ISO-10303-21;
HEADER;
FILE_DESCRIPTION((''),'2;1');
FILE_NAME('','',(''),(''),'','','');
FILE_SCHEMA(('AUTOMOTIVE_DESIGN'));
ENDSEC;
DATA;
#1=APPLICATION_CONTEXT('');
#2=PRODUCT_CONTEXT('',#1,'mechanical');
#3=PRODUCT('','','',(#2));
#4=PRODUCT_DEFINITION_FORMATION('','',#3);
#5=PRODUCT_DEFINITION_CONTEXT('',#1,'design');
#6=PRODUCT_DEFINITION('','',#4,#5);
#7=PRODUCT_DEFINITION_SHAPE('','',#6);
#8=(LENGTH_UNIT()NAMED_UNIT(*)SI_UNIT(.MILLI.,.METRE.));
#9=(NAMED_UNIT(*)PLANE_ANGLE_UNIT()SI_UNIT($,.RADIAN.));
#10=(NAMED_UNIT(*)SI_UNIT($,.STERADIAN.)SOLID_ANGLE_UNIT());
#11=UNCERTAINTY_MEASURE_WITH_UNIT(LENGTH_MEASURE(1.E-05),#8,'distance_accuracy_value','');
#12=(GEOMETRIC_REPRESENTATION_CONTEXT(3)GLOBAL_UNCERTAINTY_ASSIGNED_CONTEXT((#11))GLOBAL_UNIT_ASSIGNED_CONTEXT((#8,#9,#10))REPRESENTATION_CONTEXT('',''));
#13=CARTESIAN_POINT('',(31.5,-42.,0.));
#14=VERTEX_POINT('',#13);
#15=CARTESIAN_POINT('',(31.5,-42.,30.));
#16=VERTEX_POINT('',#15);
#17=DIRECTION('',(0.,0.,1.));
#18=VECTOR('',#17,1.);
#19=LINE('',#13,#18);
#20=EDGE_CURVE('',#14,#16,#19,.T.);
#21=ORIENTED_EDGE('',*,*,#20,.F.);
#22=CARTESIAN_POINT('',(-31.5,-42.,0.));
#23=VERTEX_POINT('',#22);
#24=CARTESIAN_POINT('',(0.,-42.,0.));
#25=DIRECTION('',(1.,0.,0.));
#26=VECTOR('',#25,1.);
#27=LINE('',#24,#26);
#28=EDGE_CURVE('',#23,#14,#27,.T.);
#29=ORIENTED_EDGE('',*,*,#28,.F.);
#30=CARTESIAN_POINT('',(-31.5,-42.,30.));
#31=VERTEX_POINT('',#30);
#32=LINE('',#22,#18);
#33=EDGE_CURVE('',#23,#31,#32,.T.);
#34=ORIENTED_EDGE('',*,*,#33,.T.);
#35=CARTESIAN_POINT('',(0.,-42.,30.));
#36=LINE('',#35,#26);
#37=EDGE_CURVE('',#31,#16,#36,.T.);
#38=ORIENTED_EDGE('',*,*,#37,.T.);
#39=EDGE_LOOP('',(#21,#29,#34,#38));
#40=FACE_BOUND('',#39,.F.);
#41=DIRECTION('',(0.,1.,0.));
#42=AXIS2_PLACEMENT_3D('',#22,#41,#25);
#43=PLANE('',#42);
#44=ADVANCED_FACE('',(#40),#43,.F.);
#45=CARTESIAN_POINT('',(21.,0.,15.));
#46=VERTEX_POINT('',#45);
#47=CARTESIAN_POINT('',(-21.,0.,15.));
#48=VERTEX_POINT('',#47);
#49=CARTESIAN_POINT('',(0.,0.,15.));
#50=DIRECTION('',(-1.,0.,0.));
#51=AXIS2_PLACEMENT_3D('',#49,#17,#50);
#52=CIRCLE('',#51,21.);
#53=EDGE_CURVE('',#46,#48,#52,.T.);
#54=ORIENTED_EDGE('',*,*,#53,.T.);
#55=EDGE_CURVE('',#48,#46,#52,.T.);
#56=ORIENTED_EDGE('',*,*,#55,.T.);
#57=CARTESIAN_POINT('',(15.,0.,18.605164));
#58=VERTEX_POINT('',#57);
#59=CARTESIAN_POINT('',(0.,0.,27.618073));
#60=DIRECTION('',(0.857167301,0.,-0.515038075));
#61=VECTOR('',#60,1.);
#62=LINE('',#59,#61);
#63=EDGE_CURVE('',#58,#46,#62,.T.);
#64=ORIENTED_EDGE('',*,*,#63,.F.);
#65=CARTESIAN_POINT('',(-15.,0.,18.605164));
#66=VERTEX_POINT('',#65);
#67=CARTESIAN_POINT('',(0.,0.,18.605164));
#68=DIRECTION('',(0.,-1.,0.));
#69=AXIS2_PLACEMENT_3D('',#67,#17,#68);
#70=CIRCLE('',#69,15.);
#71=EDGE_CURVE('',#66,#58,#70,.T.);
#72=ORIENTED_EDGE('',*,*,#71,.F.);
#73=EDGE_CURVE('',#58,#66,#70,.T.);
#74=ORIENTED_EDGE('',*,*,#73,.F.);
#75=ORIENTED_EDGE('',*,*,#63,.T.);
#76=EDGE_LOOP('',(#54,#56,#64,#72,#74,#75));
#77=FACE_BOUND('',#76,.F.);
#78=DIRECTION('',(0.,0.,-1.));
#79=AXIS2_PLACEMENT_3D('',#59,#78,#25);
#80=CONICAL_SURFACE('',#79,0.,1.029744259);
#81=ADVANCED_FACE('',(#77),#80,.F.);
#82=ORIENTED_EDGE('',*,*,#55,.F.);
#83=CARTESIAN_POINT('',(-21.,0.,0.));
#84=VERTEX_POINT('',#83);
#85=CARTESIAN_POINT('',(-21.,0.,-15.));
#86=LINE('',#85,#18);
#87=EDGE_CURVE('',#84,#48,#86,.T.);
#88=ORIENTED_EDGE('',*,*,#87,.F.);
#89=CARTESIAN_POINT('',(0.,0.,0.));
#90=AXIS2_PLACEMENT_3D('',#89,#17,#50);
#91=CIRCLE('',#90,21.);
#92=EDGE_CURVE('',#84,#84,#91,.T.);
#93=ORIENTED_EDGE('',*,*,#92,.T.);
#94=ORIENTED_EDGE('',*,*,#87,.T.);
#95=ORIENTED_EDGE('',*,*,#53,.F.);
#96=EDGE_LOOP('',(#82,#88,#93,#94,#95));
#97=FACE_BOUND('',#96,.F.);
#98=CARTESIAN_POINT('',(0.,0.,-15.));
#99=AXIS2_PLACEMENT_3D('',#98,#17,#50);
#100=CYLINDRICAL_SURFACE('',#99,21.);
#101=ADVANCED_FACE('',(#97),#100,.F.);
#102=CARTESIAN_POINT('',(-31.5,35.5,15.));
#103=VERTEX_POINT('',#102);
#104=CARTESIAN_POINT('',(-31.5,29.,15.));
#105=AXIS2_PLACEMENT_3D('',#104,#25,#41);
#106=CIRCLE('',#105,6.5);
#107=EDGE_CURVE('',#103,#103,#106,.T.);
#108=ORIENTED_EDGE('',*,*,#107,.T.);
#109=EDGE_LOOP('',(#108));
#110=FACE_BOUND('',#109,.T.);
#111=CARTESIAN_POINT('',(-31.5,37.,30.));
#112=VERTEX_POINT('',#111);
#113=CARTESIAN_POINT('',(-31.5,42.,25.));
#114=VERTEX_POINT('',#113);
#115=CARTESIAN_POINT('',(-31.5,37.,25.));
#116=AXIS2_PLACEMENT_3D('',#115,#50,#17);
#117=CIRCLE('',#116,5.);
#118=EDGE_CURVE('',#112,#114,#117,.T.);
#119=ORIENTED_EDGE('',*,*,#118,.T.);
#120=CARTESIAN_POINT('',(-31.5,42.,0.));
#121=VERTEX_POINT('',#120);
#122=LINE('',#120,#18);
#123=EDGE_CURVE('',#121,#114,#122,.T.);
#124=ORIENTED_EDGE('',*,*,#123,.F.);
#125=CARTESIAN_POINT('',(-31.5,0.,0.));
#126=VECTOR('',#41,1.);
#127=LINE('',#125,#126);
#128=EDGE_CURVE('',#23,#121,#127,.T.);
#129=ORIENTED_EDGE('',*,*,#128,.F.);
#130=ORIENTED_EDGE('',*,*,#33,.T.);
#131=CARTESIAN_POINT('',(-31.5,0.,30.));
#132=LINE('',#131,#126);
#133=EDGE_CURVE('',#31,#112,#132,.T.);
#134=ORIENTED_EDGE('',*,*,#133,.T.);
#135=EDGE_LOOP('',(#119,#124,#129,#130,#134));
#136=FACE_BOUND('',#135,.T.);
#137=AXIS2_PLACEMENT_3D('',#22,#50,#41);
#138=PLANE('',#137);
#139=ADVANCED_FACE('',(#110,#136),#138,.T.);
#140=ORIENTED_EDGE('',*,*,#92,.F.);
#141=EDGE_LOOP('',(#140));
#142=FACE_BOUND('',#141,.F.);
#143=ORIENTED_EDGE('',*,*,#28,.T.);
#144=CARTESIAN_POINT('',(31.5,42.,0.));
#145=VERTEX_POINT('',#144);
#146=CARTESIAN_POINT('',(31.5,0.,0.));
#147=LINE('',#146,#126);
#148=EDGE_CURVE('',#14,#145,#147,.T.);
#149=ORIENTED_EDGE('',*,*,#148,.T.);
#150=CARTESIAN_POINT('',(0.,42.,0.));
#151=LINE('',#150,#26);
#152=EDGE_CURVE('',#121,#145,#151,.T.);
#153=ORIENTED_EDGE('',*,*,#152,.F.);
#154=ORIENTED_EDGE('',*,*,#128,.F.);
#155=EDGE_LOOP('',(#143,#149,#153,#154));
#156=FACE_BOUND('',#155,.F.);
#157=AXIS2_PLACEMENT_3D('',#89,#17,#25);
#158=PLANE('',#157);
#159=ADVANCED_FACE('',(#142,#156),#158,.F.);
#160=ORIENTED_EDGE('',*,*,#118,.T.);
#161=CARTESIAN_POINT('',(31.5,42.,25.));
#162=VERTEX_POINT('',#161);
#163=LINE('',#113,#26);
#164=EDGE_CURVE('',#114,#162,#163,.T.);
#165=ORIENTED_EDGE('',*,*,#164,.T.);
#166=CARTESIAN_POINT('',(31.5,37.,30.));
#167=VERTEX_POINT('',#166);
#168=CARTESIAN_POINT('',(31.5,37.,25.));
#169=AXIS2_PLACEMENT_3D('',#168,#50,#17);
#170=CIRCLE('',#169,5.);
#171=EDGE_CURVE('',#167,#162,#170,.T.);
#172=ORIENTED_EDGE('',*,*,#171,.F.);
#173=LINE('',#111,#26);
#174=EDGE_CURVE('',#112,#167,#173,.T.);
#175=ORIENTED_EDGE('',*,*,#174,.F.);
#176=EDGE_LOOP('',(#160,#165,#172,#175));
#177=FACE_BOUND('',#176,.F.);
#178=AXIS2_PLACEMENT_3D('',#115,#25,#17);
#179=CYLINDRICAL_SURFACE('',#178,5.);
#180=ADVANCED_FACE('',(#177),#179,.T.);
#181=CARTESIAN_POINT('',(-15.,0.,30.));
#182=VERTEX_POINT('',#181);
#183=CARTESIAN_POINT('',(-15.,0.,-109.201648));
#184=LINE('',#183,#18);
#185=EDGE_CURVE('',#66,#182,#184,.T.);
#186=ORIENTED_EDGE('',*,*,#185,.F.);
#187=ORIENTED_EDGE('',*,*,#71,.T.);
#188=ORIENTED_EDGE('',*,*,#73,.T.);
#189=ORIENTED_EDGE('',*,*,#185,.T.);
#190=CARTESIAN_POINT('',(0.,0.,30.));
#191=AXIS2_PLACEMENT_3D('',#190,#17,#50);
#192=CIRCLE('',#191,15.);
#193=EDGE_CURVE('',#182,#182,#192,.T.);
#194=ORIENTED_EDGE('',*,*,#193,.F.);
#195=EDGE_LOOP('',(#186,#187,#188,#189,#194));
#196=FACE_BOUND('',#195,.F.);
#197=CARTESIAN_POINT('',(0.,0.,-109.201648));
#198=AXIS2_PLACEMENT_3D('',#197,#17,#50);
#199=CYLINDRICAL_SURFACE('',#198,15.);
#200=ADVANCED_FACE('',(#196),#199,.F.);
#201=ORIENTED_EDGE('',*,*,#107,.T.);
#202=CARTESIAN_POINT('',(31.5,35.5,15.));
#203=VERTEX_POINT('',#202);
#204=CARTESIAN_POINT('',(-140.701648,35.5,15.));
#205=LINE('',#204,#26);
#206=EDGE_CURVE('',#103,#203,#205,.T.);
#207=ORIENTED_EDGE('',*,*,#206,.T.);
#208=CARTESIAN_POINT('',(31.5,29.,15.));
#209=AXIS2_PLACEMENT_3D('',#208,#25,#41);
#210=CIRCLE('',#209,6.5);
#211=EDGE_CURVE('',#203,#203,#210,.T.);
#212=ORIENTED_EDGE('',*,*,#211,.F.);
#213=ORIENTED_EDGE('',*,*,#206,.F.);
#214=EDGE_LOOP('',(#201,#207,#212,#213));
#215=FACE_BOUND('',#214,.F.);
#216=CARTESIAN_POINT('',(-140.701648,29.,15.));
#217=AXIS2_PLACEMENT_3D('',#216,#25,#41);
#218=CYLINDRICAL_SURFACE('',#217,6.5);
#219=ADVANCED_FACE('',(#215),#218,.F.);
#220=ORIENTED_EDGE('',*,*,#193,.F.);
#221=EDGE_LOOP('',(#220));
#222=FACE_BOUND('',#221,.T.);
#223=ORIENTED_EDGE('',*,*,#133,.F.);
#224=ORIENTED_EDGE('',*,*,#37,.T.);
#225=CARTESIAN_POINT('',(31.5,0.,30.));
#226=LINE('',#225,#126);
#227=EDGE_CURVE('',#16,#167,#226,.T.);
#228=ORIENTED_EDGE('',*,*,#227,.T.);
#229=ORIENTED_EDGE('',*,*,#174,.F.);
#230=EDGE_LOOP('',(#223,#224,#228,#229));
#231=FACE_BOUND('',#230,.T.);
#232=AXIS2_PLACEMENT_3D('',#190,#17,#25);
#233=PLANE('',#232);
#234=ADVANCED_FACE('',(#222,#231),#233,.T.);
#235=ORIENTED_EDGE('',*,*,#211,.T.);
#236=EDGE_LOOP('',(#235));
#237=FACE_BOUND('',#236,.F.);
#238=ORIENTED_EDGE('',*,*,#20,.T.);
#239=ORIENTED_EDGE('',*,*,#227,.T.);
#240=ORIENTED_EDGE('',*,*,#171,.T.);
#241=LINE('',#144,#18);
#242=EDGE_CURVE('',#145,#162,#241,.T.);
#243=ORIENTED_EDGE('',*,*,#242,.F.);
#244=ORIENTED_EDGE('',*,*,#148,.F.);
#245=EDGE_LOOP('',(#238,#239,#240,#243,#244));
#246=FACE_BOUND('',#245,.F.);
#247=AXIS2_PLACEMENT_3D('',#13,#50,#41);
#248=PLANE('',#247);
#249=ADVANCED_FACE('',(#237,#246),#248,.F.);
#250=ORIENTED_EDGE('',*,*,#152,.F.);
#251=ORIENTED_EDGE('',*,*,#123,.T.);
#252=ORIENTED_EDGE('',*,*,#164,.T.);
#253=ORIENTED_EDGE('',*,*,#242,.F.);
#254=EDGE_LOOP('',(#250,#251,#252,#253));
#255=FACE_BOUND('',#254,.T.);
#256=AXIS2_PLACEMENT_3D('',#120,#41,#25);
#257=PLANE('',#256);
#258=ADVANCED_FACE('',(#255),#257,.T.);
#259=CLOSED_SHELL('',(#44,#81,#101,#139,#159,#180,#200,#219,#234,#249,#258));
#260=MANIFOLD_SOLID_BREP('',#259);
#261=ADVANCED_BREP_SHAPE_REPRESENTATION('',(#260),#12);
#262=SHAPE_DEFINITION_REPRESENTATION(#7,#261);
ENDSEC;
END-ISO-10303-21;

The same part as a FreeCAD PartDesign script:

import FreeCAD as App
import Part
import Sketcher
from FreeCAD import Vector


def edges_at(feature, points):
    """Names of the edges that pass closest to the given points."""
    edges = feature.Shape.Edges
    near = lambda p: min(range(len(edges)), key=lambda i: edges[i].distToShape(Part.Vertex(*p))[0])
    return sorted({f"Edge{near(p) + 1}" for p in points})


def add_polygon(sketch, points):
    """Adds a closed chain of lines whose ends are joined by coincident constraints."""
    first, n = sketch.GeometryCount, len(points)
    for a, b in zip(points, points[1:] + points[:1]):
        sketch.addGeometry(Part.LineSegment(App.Vector(*a, 0), App.Vector(*b, 0)), False)
    for i in range(n):
        sketch.addConstraint(Sketcher.Constraint("Coincident", first + i, 2, first + (i + 1) % n, 1))

doc = App.newDocument("Part")
params = doc.addObject("Spreadsheet::Sheet", "Params")
for row, (alias, value) in enumerate([
    ("sketch1_width", "63 mm"),
    ("sketch1_height", "84 mm"),
    ("pad1_length", "30 mm"),
    ("sketch2_diameter", "30 mm"),
    ("hole_diameter", "30 mm"),
    ("sketch3_diameter", "42 mm"),
    ("hole2_diameter", "42 mm"),
    ("hole2_depth", "15 mm"),
    ("sketch4_diameter", "13 mm"),
    ("hole3_diameter", "13 mm"),
    ("fillet_radius", "5 mm"),
], start=1):
    params.set(f"A{row}", alias)
    params.set(f"B{row}", "=" + value)
    params.setAlias(f"B{row}", alias)

body = doc.addObject("PartDesign::Body", "Body")

sketch1 = body.newObject("Sketcher::SketchObject", "Sketch")
sketch1.AttachmentSupport = (doc.getObject("XY_Plane"), [""])
sketch1.MapMode = "FlatFace"
add_polygon(sketch1, [(-31.5, 42), (-31.5, -42), (31.5, -42), (31.5, 42)])
sketch1.addConstraint(Sketcher.Constraint("Vertical", 0))
sketch1.addConstraint(Sketcher.Constraint("Horizontal", 1))
sketch1.addConstraint(Sketcher.Constraint("Vertical", 2))
sketch1.addConstraint(Sketcher.Constraint("Horizontal", 3))
sketch1.addConstraint(Sketcher.Constraint("Symmetric", 0, 2, 2, 2, -1, 1))
sketch1.addConstraint(Sketcher.Constraint("DistanceX", 1, 1, 1, 2, 63.0))
sketch1.addConstraint(Sketcher.Constraint("DistanceY", 0, 2, 0, 1, 84.0))
sketch1.setExpression("Constraints[9]", "Params.sketch1_width")
sketch1.setExpression("Constraints[10]", "Params.sketch1_height")
pad1 = body.newObject("PartDesign::Pad", "Pad")
pad1.Profile = sketch1
pad1.setExpression("Length", "Params.pad1_length")

sketch2 = body.newObject("Sketcher::SketchObject", "Sketch001")
sketch2.AttachmentSupport = (doc.getObject("XY_Plane"), [""])
sketch2.MapMode = "FlatFace"
sketch2.addGeometry(Part.Circle(Vector(0, 0, 0), Vector(0, 0, 1), 15), False)
sketch2.addConstraint(Sketcher.Constraint("Coincident", 0, 3, -1, 1))
sketch2.addConstraint(Sketcher.Constraint("Diameter", 0, 30.0))
sketch2.setExpression("Constraints[1]", "Params.sketch2_diameter")
doc.recompute()
hole = body.newObject("PartDesign::Hole", "Hole")
hole.Profile = sketch2
hole.ThreadType = "None"
hole.setExpression("Diameter", "Params.hole_diameter")
hole.DepthType = "ThroughAll"
hole.Reversed = True

sketch3 = body.newObject("Sketcher::SketchObject", "Sketch002")
sketch3.AttachmentSupport = (doc.getObject("XY_Plane"), [""])
sketch3.MapMode = "FlatFace"
sketch3.addGeometry(Part.Circle(Vector(0, 0, 0), Vector(0, 0, 1), 21), False)
sketch3.addConstraint(Sketcher.Constraint("Coincident", 0, 3, -1, 1))
sketch3.addConstraint(Sketcher.Constraint("Diameter", 0, 42.0))
sketch3.setExpression("Constraints[1]", "Params.sketch3_diameter")
doc.recompute()
hole2 = body.newObject("PartDesign::Hole", "Hole001")
hole2.Profile = sketch3
hole2.ThreadType = "None"
hole2.setExpression("Diameter", "Params.hole2_diameter")
hole2.DepthType = "Dimension"
hole2.setExpression("Depth", "Params.hole2_depth")
hole2.DrillPoint = "Angled"
hole2.DrillPointAngle = 118
hole2.Reversed = True

sketch4 = body.newObject("Sketcher::SketchObject", "Sketch003")
sketch4.AttachmentSupport = (doc.getObject("YZ_Plane"), [""])
sketch4.MapMode = "FlatFace"
sketch4.AttachmentOffset = App.Placement(Vector(0, 0, -31.5), App.Rotation())
sketch4.addGeometry(Part.Circle(Vector(29, 15, 0), Vector(0, 0, 1), 6.5), False)
sketch4.addConstraint(Sketcher.Constraint("Diameter", 0, 13.0))
sketch4.addConstraint(Sketcher.Constraint("DistanceX", -1, 1, 0, 3, 29.0))
sketch4.addConstraint(Sketcher.Constraint("DistanceY", -1, 1, 0, 3, 15.0))
sketch4.setExpression("Constraints[0]", "Params.sketch4_diameter")
doc.recompute()
hole3 = body.newObject("PartDesign::Hole", "Hole002")
hole3.Profile = sketch4
hole3.ThreadType = "None"
hole3.setExpression("Diameter", "Params.hole3_diameter")
hole3.DepthType = "ThroughAll"
hole3.Reversed = True
doc.recompute()

fillet = body.newObject("PartDesign::Fillet", "Fillet")
fillet.Base = (hole3, edges_at(hole3, [(0, 42, 30)]))
fillet.setExpression("Radius", "Params.fillet_radius")

doc.recompute()
